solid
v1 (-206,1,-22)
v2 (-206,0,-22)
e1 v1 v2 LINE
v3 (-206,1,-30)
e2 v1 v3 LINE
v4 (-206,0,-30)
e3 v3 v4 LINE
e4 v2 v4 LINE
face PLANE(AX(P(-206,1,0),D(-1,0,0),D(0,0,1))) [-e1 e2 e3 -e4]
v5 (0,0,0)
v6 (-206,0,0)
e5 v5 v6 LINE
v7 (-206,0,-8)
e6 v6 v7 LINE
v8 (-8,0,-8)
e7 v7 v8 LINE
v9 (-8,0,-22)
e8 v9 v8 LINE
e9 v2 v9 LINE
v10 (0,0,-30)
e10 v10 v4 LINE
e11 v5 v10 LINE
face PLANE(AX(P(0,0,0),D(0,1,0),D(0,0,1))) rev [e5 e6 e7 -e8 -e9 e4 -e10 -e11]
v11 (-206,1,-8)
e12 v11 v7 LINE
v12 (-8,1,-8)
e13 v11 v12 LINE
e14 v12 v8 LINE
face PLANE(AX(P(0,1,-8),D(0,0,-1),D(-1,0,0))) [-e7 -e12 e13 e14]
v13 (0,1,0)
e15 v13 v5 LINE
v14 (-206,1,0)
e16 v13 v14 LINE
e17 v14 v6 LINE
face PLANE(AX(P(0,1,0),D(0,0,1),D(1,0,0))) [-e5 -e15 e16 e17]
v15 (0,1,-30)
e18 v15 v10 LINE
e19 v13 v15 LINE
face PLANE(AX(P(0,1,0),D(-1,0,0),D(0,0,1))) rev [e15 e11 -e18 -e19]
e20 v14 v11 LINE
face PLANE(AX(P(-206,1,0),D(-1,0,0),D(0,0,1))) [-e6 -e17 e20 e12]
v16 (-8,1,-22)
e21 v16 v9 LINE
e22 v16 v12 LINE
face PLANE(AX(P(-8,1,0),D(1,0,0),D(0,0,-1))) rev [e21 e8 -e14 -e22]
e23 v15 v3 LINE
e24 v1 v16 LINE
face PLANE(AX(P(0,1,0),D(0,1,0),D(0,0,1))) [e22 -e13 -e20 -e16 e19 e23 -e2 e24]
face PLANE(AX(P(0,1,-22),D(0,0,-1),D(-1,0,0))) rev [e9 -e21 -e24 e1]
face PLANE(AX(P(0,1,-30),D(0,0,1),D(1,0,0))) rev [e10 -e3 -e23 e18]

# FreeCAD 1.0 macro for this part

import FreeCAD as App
import Part
import Sketcher
from FreeCAD import Vector

doc = App.newDocument("Part")
body = doc.addObject("PartDesign::Body", "Body")

sketch1 = body.newObject("Sketcher::SketchObject", "Sketch")
sketch1.AttachmentSupport = (doc.getObject("XZ_Plane"), [""])
sketch1.MapMode = "FlatFace"
sketch1.addGeometry(Part.LineSegment(Vector(-8, -8, 0), Vector(-206, -8, 0)), False)
sketch1.addGeometry(Part.LineSegment(Vector(-206, -8, 0), Vector(-206, 0, 0)), False)
sketch1.addGeometry(Part.LineSegment(Vector(-206, 0, 0), Vector(0, 0, 0)), False)
sketch1.addGeometry(Part.LineSegment(Vector(0, 0, 0), Vector(0, -30, 0)), False)
sketch1.addGeometry(Part.LineSegment(Vector(0, -30, 0), Vector(-206, -30, 0)), False)
sketch1.addGeometry(Part.LineSegment(Vector(-206, -30, 0), Vector(-206, -22, 0)), False)
sketch1.addGeometry(Part.LineSegment(Vector(-206, -22, 0), Vector(-8, -22, 0)), False)
sketch1.addGeometry(Part.LineSegment(Vector(-8, -22, 0), Vector(-8, -8, 0)), False)
sketch1.addConstraint(Sketcher.Constraint("Coincident", 0, 2, 1, 1))
sketch1.addConstraint(Sketcher.Constraint("Coincident", 1, 2, 2, 1))
sketch1.addConstraint(Sketcher.Constraint("Coincident", 2, 2, 3, 1))
sketch1.addConstraint(Sketcher.Constraint("Coincident", 3, 2, 4, 1))
sketch1.addConstraint(Sketcher.Constraint("Coincident", 4, 2, 5, 1))
sketch1.addConstraint(Sketcher.Constraint("Coincident", 5, 2, 6, 1))
sketch1.addConstraint(Sketcher.Constraint("Coincident", 6, 2, 7, 1))
sketch1.addConstraint(Sketcher.Constraint("Coincident", 7, 2, 0, 1))
sketch1.addConstraint(Sketcher.Constraint("Horizontal", 0))
sketch1.addConstraint(Sketcher.Constraint("Vertical", 1))
sketch1.addConstraint(Sketcher.Constraint("Horizontal", 2))
sketch1.addConstraint(Sketcher.Constraint("Vertical", 3))
sketch1.addConstraint(Sketcher.Constraint("Horizontal", 4))
sketch1.addConstraint(Sketcher.Constraint("Vertical", 5))
sketch1.addConstraint(Sketcher.Constraint("Horizontal", 6))
sketch1.addConstraint(Sketcher.Constraint("Vertical", 7))
sketch1.addConstraint(Sketcher.Constraint("Coincident", 2, 2, -1, 1))
sketch1.addConstraint(Sketcher.Constraint("Vertical", 1, 2, 4, 2))
sketch1.addConstraint(Sketcher.Constraint("Equal", 1, 5))
sketch1.addConstraint(Sketcher.Constraint("DistanceX", 0, 2, 0, 1, 198.0))
sketch1.addConstraint(Sketcher.Constraint("DistanceX", 2, 1, 2, 2, 206.0))
sketch1.addConstraint(Sketcher.Constraint("DistanceY", 1, 1, 1, 2, 8.0))
sketch1.addConstraint(Sketcher.Constraint("DistanceY", 3, 2, 3, 1, 30.0))
pad1 = body.newObject("PartDesign::Pad", "Pad")
pad1.Profile = sketch1
pad1.Length = 1
pad1.Reversed = True

doc.recompute()
